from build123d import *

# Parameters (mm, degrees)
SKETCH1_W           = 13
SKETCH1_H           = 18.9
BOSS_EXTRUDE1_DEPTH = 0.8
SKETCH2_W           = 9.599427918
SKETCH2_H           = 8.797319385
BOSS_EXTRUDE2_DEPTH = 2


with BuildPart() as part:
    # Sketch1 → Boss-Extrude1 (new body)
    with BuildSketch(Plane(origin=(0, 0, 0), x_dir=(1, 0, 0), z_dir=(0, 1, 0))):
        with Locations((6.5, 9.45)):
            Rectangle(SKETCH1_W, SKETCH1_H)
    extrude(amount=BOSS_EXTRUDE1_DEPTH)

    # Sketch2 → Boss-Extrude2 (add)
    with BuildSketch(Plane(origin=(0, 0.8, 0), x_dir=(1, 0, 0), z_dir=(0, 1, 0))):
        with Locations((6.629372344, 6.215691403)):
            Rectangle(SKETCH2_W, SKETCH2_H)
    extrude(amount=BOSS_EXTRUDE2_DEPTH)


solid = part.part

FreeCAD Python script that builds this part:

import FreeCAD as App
import Part
import Sketcher
from FreeCAD import Vector


def add_polygon(sketch, points):
    """Adds a closed chain of lines whose ends are joined by coincident constraints."""
    first, n = sketch.GeometryCount, len(points)
    for a, b in zip(points, points[1:] + points[:1]):
        sketch.addGeometry(Part.LineSegment(App.Vector(*a, 0), App.Vector(*b, 0)), False)
    for i in range(n):
        sketch.addConstraint(Sketcher.Constraint("Coincident", first + i, 2, first + (i + 1) % n, 1))

doc = App.newDocument("Part")
params = doc.addObject("Spreadsheet::Sheet", "Params")
for row, (alias, value) in enumerate([
    ("sketch1_width", "13 mm"),
    ("sketch1_height", "18.9 mm"),
    ("pad1_length", "0.8 mm"),
    ("pad2_length", "2 mm"),
], start=1):
    params.set(f"A{row}", alias)
    params.set(f"B{row}", "=" + value)
    params.setAlias(f"B{row}", alias)

body = doc.addObject("PartDesign::Body", "Body")

sketch1 = body.newObject("Sketcher::SketchObject", "Sketch")
sketch1.AttachmentSupport = (doc.getObject("XZ_Plane"), [""])
sketch1.MapMode = "FlatFace"
add_polygon(sketch1, [(0, -18.9), (0, 0), (13, 0), (13, -18.9)])
sketch1.addConstraint(Sketcher.Constraint("Vertical", 0))
sketch1.addConstraint(Sketcher.Constraint("Horizontal", 1))
sketch1.addConstraint(Sketcher.Constraint("Vertical", 2))
sketch1.addConstraint(Sketcher.Constraint("Horizontal", 3))
sketch1.addConstraint(Sketcher.Constraint("Coincident", 0, 2, -1, 1))
sketch1.addConstraint(Sketcher.Constraint("DistanceX", 1, 1, 1, 2, 13.0))
sketch1.addConstraint(Sketcher.Constraint("DistanceY", 0, 1, 0, 2, 18.9))
sketch1.setExpression("Constraints[9]", "Params.sketch1_width")
sketch1.setExpression("Constraints[10]", "Params.sketch1_height")
pad1 = body.newObject("PartDesign::Pad", "Pad")
pad1.Profile = sketch1
pad1.setExpression("Length", "Params.pad1_length")
pad1.Reversed = True

sketch2 = body.newObject("Sketcher::SketchObject", "Sketch001")
sketch2.AttachmentSupport = (doc.getObject("XZ_Plane"), [""])
sketch2.MapMode = "FlatFace"
sketch2.AttachmentOffset = App.Placement(Vector(0, 0, -0.8), App.Rotation())
add_polygon(sketch2, [(1.829658, -10.614351), (1.829658, -1.817032), (11.429086, -1.817032), (11.429086, -10.614351)])
sketch2.addConstraint(Sketcher.Constraint("Vertical", 0))
sketch2.addConstraint(Sketcher.Constraint("Horizontal", 1))
sketch2.addConstraint(Sketcher.Constraint("Vertical", 2))
sketch2.addConstraint(Sketcher.Constraint("Horizontal", 3))
sketch2.addConstraint(Sketcher.Constraint("DistanceY", 0, 1, 0, 2, 8.797319))
sketch2.addConstraint(Sketcher.Constraint("DistanceX", 1, 1, 1, 2, 9.599428))
sketch2.addConstraint(Sketcher.Constraint("DistanceX", -1, 1, 0, 2, 1.829658))
sketch2.addConstraint(Sketcher.Constraint("DistanceY", 0, 2, -1, 1, 1.817032))
pad2 = body.newObject("PartDesign::Pad", "Pad001")
pad2.Profile = sketch2
pad2.setExpression("Length", "Params.pad2_length")
pad2.Reversed = True

doc.recompute()
